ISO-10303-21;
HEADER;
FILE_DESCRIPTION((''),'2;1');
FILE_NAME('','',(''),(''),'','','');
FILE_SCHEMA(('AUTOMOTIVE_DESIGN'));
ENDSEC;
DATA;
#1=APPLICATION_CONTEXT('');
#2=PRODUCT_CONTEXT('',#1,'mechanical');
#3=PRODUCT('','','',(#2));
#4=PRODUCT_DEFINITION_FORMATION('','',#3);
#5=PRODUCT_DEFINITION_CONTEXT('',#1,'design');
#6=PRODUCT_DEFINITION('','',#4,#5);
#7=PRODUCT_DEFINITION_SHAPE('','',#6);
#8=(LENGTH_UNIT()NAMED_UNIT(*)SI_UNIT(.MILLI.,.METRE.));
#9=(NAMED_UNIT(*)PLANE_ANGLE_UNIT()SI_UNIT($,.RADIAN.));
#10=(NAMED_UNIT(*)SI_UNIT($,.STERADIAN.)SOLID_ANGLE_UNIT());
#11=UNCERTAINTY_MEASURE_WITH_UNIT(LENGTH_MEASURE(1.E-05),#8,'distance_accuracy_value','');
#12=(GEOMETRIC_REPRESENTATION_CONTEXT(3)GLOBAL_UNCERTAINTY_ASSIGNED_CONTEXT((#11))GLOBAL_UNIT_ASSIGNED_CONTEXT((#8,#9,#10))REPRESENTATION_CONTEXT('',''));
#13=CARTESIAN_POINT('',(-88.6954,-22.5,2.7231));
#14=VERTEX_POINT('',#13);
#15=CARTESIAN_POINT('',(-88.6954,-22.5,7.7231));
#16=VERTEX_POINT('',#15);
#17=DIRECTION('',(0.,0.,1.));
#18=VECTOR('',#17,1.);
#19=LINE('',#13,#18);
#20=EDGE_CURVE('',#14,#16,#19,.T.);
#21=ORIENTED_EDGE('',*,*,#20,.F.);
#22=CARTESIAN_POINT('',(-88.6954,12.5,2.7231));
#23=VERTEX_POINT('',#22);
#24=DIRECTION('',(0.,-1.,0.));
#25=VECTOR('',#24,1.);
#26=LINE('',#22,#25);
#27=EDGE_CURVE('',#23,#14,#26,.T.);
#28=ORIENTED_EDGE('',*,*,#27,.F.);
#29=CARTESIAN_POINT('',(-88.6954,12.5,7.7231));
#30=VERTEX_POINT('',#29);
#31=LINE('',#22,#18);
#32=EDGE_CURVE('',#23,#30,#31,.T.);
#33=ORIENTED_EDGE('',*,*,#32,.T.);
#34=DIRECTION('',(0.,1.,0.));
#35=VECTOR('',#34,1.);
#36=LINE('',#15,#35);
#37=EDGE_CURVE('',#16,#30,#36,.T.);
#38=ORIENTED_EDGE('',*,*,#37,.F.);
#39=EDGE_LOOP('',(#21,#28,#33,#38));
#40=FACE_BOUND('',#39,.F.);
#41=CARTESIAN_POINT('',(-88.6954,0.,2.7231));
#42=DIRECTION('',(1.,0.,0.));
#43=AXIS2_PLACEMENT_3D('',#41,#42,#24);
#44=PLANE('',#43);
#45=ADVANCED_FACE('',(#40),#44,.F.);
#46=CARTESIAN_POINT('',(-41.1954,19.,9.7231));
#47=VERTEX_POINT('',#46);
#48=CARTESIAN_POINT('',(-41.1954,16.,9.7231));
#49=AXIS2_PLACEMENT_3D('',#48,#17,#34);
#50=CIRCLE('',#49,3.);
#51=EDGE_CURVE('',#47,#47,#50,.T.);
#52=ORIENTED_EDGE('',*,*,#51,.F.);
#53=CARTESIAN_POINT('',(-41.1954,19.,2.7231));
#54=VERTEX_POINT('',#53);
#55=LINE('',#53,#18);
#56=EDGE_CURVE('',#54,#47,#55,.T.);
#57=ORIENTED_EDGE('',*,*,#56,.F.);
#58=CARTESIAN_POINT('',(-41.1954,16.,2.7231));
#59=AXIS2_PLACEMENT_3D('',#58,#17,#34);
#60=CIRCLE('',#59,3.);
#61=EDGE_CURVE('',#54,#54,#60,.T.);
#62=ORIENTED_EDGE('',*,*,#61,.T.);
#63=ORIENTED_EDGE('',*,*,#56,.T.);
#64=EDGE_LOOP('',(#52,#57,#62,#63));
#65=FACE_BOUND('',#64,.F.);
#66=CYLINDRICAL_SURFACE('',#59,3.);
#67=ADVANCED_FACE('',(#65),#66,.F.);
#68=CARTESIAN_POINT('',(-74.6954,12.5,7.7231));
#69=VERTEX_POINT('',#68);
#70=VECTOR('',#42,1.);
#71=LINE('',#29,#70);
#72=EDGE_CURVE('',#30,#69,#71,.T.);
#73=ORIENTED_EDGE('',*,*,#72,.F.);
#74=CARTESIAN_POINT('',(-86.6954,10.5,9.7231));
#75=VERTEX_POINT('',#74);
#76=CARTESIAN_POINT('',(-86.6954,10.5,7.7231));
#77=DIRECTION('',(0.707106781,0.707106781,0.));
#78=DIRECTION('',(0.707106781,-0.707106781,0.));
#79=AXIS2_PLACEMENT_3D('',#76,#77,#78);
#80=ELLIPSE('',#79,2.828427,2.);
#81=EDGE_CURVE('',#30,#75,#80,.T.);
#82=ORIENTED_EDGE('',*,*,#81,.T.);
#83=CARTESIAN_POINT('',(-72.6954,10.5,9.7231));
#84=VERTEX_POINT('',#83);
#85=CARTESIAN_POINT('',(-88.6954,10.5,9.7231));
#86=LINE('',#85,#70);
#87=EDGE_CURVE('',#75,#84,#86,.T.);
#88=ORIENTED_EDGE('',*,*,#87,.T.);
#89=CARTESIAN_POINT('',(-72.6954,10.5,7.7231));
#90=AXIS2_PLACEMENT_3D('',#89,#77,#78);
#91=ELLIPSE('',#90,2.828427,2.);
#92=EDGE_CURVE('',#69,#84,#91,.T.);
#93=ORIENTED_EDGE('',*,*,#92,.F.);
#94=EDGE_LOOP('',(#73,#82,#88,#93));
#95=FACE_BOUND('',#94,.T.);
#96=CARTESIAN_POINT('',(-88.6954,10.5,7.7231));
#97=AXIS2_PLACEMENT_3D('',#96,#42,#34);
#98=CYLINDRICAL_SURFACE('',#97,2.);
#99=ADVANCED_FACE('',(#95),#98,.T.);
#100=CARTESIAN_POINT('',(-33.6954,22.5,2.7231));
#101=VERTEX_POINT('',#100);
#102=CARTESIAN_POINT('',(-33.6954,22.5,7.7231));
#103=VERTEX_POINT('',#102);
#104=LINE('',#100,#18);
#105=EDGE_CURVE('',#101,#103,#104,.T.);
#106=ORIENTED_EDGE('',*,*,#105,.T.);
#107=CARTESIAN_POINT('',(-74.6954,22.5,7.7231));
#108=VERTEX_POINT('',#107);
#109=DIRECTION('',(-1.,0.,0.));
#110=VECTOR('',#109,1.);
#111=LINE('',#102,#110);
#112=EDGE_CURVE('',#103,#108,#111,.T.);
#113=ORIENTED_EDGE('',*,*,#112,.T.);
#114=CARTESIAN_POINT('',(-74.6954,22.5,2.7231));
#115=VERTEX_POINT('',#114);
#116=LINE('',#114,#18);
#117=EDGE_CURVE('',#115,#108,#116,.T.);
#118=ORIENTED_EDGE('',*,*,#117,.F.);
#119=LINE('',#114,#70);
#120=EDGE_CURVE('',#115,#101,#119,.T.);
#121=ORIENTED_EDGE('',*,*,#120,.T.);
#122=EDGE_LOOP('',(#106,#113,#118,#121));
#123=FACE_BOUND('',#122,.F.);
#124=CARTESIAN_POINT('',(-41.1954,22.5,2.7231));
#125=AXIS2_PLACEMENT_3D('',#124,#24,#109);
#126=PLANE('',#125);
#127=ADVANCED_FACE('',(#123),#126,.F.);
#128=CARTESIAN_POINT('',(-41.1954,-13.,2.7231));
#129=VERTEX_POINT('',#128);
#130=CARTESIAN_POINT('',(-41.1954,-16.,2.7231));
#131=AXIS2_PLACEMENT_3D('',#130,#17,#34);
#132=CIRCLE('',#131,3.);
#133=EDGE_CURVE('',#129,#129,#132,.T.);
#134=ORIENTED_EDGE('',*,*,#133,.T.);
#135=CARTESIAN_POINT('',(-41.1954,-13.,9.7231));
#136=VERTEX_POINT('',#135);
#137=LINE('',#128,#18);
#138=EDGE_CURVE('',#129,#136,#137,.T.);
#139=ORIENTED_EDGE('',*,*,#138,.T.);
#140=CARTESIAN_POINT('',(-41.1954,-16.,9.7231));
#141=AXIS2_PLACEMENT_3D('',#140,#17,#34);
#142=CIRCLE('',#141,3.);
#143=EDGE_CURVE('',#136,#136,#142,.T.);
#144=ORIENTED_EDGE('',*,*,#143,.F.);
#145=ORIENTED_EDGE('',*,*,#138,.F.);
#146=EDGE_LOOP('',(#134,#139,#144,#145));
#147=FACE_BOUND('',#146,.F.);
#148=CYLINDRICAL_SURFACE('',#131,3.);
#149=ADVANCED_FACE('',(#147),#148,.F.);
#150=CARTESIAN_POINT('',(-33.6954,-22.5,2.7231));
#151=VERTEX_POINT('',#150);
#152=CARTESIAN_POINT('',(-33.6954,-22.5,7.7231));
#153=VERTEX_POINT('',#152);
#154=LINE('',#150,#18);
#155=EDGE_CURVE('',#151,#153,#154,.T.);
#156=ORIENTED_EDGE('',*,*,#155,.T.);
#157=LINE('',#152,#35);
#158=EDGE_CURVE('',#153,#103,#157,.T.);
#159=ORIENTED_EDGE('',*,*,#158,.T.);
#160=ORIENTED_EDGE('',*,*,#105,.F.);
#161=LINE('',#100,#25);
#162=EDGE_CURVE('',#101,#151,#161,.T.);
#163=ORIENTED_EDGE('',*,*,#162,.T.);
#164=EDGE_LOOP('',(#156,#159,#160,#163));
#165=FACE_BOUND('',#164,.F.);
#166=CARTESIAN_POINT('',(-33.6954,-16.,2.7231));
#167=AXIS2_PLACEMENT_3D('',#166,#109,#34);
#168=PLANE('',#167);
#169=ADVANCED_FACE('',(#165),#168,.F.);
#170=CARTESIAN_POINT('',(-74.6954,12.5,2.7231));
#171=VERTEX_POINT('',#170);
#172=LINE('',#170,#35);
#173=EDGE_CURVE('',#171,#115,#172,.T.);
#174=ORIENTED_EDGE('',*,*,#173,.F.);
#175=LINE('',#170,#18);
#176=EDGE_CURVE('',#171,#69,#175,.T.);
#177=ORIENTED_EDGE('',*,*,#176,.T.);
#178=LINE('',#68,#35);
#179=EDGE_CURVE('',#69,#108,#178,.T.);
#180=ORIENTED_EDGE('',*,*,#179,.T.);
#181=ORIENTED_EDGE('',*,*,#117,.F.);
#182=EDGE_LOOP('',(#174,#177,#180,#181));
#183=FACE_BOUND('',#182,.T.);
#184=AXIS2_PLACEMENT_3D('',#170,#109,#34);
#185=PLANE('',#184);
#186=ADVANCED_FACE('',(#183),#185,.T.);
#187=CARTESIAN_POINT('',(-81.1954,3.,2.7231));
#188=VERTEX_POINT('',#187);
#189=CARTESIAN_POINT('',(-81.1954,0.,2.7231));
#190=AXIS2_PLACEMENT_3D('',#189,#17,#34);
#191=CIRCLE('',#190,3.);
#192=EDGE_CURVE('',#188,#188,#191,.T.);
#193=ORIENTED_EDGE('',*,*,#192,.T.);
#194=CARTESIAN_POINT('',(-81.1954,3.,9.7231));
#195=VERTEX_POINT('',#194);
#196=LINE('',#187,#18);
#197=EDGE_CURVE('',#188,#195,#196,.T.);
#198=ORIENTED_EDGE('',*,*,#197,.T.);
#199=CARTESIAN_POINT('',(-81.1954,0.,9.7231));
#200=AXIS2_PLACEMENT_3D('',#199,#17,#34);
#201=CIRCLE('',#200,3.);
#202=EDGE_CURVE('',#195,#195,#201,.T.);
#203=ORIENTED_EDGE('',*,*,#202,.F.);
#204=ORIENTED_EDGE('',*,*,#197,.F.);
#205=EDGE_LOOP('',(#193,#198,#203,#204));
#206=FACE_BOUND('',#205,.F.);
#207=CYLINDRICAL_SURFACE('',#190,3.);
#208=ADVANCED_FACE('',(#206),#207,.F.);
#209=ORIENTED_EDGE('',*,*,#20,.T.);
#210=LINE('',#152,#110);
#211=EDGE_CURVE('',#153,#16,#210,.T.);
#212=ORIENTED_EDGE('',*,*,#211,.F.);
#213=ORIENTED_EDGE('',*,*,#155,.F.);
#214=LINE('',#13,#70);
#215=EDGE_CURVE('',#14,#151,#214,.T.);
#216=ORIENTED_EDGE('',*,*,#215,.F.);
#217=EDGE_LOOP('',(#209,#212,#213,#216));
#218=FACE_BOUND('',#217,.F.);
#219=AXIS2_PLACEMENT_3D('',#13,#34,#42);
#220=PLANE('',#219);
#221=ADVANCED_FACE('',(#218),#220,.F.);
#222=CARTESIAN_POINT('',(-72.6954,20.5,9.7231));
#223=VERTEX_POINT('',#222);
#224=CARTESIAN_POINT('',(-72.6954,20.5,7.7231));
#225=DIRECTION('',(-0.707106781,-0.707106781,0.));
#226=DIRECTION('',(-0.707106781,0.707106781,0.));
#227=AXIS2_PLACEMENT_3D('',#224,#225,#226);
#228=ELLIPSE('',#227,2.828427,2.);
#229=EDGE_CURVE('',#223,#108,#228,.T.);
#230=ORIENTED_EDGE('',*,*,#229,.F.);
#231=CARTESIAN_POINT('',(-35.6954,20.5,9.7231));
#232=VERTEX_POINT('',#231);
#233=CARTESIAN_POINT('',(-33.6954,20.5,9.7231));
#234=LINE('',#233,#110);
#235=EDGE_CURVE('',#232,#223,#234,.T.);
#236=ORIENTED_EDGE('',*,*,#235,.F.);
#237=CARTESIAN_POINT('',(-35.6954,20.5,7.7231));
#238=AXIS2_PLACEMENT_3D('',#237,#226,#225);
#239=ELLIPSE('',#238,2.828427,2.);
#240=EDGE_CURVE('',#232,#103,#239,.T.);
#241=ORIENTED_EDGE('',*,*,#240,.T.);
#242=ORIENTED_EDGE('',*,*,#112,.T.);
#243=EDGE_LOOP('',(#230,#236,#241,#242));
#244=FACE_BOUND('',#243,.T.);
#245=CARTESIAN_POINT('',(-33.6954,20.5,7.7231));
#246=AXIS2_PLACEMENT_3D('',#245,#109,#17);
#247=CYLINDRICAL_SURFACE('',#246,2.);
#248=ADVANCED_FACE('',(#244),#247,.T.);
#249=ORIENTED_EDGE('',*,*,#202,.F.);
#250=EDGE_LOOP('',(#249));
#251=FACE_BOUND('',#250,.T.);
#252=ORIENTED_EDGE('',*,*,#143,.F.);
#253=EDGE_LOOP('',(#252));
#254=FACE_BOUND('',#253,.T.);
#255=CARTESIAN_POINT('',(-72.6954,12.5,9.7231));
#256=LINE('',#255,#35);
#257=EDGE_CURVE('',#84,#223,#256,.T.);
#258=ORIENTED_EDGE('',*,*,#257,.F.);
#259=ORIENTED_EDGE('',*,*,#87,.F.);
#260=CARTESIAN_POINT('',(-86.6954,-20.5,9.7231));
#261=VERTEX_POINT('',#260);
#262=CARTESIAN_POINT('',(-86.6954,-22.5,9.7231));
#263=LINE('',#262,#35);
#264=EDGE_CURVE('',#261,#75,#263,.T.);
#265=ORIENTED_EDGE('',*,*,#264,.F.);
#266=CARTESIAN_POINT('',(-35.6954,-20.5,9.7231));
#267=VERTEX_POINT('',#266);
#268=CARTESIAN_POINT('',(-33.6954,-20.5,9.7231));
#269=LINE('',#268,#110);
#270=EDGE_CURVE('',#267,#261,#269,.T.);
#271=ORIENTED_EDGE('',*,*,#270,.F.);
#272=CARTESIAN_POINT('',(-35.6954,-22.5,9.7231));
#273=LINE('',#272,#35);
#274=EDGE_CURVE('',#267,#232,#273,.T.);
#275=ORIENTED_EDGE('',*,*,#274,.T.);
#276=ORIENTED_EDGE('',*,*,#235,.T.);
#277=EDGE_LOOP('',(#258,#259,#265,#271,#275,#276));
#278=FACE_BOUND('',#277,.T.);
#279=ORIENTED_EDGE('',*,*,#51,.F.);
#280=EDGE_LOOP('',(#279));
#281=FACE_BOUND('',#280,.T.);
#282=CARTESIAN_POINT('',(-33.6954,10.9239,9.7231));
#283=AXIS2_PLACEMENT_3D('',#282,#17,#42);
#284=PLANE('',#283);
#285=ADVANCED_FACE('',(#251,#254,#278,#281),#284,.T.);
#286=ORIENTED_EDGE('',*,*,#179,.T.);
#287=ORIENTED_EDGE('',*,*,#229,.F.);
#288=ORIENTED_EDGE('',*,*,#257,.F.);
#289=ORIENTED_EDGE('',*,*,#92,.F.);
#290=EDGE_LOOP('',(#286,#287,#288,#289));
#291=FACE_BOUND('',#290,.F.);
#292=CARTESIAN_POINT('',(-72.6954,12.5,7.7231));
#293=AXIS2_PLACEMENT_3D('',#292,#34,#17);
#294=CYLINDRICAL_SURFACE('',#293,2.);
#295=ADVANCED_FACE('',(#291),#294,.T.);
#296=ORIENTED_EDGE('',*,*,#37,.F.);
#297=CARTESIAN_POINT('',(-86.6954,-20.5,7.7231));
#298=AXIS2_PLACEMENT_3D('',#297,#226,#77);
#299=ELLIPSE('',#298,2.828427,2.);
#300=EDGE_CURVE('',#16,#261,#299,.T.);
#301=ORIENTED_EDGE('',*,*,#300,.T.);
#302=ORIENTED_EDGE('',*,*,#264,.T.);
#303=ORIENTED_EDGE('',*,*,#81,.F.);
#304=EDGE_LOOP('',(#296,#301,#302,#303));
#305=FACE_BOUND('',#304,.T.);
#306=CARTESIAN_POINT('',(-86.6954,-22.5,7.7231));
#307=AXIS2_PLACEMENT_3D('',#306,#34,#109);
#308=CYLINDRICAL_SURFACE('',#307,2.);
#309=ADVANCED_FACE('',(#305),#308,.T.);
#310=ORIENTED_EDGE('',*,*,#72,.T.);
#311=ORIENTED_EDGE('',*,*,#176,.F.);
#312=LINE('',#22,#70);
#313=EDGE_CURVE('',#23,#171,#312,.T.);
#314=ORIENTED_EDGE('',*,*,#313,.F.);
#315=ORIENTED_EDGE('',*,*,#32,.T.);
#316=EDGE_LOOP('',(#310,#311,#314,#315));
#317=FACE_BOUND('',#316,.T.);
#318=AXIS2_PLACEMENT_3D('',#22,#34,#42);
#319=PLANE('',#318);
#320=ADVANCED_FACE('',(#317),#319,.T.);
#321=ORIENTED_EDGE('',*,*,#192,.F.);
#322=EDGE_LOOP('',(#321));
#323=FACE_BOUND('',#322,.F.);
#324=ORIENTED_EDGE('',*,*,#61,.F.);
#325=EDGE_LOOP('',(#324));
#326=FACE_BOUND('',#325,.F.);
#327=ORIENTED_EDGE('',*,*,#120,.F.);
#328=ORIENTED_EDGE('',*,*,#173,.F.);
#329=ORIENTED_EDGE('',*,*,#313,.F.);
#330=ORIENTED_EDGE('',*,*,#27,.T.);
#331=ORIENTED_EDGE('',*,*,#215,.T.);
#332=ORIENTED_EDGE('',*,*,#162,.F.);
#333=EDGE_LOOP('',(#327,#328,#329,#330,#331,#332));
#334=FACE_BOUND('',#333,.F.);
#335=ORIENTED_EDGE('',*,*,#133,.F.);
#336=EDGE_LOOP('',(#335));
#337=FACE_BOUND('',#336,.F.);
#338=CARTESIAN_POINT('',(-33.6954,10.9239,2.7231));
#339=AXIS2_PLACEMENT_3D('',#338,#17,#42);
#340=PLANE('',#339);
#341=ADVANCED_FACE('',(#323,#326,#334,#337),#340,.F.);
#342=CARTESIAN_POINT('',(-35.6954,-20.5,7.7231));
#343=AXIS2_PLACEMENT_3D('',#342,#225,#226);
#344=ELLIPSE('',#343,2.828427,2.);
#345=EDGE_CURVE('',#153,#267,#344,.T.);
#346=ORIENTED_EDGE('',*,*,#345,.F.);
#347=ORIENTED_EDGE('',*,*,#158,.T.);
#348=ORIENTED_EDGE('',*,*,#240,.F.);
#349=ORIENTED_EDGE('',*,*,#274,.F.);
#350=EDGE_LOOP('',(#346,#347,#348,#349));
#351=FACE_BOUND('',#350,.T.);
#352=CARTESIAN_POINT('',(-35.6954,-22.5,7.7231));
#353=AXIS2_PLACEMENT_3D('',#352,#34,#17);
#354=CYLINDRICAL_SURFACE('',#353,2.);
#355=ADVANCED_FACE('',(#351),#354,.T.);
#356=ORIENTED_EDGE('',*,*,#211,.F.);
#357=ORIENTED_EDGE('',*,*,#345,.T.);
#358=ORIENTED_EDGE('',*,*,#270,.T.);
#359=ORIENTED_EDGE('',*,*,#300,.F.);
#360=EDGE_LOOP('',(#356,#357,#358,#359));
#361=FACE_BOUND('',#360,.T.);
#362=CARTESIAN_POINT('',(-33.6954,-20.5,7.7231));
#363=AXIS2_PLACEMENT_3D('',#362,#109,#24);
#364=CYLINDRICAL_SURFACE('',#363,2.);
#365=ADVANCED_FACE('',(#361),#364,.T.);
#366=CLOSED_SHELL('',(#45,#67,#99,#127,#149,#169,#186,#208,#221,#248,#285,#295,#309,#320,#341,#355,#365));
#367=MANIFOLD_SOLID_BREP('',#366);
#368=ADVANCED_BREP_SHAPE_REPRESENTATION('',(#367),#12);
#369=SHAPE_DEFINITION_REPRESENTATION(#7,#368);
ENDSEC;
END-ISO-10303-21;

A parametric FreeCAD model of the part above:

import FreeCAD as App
import Part
import Sketcher
from FreeCAD import Vector
Q = App.Units.Quantity


def edges_at(feature, points):
    """Names of the edges that pass closest to the given points."""
    edges = feature.Shape.Edges
    near = lambda p: min(range(len(edges)), key=lambda i: edges[i].distToShape(Part.Vertex(*p))[0])
    return sorted({f"Edge{near(p) + 1}" for p in points})


def add_polygon(sketch, points):
    """Adds a closed chain of lines whose ends are joined by coincident constraints."""
    first, n = sketch.GeometryCount, len(points)
    for a, b in zip(points, points[1:] + points[:1]):
        sketch.addGeometry(Part.LineSegment(App.Vector(*a, 0), App.Vector(*b, 0)), False)
    for i in range(n):
        sketch.addConstraint(Sketcher.Constraint("Coincident", first + i, 2, first + (i + 1) % n, 1))

doc = App.newDocument("Part")
params = doc.addObject("Spreadsheet::Sheet", "Params")
for row, (alias, value) in enumerate([
    ("sketch1_width", "55 mm"),
    ("sketch1_width2", "14 mm"),
    ("sketch1_height", "45 mm"),
    ("sketch1_height2", "10 mm"),
    ("pad1_length", "7 mm"),
    ("sketch2_diameter", "6 mm"),
    ("hole_diameter", "6 mm"),
    ("fillet_radius", "2 mm"),
], start=1):
    params.set(f"A{row}", alias)
    params.set(f"B{row}", "=" + value)
    params.setAlias(f"B{row}", alias)

body = doc.addObject("PartDesign::Body", "Body")

# Sketch on XY plane
sketch1 = body.newObject("Sketcher::SketchObject", "Sketch")
sketch1.AttachmentSupport = (doc.getObject("XY_Plane"), [""])
sketch1.MapMode = "FlatFace"
sketch1.AttachmentOffset = App.Placement(Vector(0, 0, 2.7231), App.Rotation())
add_polygon(sketch1, [(-89, -22), (-34, -22), (-34, 22), (-75, 22), (-75, 12), (-89, 12)])  # lines 0-5
sketch1.addConstraint([
    Sketcher.Constraint("Horizontal", 0),
    Sketcher.Constraint("Vertical", 1),
    Sketcher.Constraint("Horizontal", 2),
    Sketcher.Constraint("Vertical", 3),
    Sketcher.Constraint("Horizontal", 4),
    Sketcher.Constraint("Vertical", 5),
    Sketcher.Constraint("DistanceX", 0, 1, 0, 2, Q("55 mm")),
    Sketcher.Constraint("DistanceX", 4, 2, 4, 1, Q("14 mm")),
    Sketcher.Constraint("DistanceY", 1, 1, 1, 2, Q("45 mm")),
    Sketcher.Constraint("DistanceY", 3, 2, 3, 1, Q("10 mm")),
    Sketcher.Constraint("DistanceY", 0, 2, -1, 1, Q("22.5 mm")),
    Sketcher.Constraint("DistanceX", 0, 2, -1, 1, Q("33.6954 mm")),
])
sketch1.setExpression("Constraints[12]", "Params.sketch1_width")
sketch1.setExpression("Constraints[13]", "Params.sketch1_width2")
sketch1.setExpression("Constraints[14]", "Params.sketch1_height")
sketch1.setExpression("Constraints[15]", "Params.sketch1_height2")
pad1 = body.newObject("PartDesign::Pad", "Pad")
pad1.Profile = sketch1
pad1.setExpression("Length", "Params.pad1_length")

# Sketch on XY plane
sketch2 = body.newObject("Sketcher::SketchObject", "Sketch001")
sketch2.AttachmentSupport = (doc.getObject("XY_Plane"), [""])
sketch2.MapMode = "FlatFace"
sketch2.AttachmentOffset = App.Placement(Vector(0, 0, 2.7231), App.Rotation())
sketch2.addGeometry([
    Part.Circle(Vector(-41.2, -16, 0), Vector(0, 0, 1), 3),
    Part.Circle(Vector(-41.2, 16, 0), Vector(0, 0, 1), 3),
    Part.Circle(Vector(-81.2, 0, 0), Vector(0, 0, 1), 3),
], False)
sketch2.addConstraint([
    Sketcher.Constraint("Equal", 0, 1),
    Sketcher.Constraint("Equal", 1, 2),
    Sketcher.Constraint("Symmetric", 0, 3, 1, 3, -1),
    Sketcher.Constraint("PointOnObject", 2, 3, -1),
    Sketcher.Constraint("Diameter", 0, Q("6 mm")),
    Sketcher.Constraint("DistanceY", 0, 3, -1, 1, Q("16 mm")),
    Sketcher.Constraint("DistanceX", 2, 3, 0, 3, Q("40 mm")),
    Sketcher.Constraint("DistanceX", 0, 3, -1, 1, Q("41.1954 mm")),
])
sketch2.setExpression("Constraints[4]", "Params.sketch2_diameter")
doc.recompute()
hole = body.newObject("PartDesign::Hole", "Hole")
hole.Profile = sketch2
hole.ThreadType = "None"
hole.setExpression("Diameter", "Params.hole_diameter")
hole.DepthType = "ThroughAll"
hole.Reversed = True
doc.recompute()

fillet = body.newObject("PartDesign::Fillet", "Fillet")
fillet.Base = (hole, edges_at(hole, [
    (-81.695, 12.5, 9.723),
    (-88.695, -5, 9.723),
    (-74.695, 17.5, 9.723),
    (-54.195, 22.5, 9.723),
    (-61.195, -22.5, 9.723),
    (-33.695, 0, 9.723),
]))
fillet.setExpression("Radius", "Params.fillet_radius")

doc.recompute()
